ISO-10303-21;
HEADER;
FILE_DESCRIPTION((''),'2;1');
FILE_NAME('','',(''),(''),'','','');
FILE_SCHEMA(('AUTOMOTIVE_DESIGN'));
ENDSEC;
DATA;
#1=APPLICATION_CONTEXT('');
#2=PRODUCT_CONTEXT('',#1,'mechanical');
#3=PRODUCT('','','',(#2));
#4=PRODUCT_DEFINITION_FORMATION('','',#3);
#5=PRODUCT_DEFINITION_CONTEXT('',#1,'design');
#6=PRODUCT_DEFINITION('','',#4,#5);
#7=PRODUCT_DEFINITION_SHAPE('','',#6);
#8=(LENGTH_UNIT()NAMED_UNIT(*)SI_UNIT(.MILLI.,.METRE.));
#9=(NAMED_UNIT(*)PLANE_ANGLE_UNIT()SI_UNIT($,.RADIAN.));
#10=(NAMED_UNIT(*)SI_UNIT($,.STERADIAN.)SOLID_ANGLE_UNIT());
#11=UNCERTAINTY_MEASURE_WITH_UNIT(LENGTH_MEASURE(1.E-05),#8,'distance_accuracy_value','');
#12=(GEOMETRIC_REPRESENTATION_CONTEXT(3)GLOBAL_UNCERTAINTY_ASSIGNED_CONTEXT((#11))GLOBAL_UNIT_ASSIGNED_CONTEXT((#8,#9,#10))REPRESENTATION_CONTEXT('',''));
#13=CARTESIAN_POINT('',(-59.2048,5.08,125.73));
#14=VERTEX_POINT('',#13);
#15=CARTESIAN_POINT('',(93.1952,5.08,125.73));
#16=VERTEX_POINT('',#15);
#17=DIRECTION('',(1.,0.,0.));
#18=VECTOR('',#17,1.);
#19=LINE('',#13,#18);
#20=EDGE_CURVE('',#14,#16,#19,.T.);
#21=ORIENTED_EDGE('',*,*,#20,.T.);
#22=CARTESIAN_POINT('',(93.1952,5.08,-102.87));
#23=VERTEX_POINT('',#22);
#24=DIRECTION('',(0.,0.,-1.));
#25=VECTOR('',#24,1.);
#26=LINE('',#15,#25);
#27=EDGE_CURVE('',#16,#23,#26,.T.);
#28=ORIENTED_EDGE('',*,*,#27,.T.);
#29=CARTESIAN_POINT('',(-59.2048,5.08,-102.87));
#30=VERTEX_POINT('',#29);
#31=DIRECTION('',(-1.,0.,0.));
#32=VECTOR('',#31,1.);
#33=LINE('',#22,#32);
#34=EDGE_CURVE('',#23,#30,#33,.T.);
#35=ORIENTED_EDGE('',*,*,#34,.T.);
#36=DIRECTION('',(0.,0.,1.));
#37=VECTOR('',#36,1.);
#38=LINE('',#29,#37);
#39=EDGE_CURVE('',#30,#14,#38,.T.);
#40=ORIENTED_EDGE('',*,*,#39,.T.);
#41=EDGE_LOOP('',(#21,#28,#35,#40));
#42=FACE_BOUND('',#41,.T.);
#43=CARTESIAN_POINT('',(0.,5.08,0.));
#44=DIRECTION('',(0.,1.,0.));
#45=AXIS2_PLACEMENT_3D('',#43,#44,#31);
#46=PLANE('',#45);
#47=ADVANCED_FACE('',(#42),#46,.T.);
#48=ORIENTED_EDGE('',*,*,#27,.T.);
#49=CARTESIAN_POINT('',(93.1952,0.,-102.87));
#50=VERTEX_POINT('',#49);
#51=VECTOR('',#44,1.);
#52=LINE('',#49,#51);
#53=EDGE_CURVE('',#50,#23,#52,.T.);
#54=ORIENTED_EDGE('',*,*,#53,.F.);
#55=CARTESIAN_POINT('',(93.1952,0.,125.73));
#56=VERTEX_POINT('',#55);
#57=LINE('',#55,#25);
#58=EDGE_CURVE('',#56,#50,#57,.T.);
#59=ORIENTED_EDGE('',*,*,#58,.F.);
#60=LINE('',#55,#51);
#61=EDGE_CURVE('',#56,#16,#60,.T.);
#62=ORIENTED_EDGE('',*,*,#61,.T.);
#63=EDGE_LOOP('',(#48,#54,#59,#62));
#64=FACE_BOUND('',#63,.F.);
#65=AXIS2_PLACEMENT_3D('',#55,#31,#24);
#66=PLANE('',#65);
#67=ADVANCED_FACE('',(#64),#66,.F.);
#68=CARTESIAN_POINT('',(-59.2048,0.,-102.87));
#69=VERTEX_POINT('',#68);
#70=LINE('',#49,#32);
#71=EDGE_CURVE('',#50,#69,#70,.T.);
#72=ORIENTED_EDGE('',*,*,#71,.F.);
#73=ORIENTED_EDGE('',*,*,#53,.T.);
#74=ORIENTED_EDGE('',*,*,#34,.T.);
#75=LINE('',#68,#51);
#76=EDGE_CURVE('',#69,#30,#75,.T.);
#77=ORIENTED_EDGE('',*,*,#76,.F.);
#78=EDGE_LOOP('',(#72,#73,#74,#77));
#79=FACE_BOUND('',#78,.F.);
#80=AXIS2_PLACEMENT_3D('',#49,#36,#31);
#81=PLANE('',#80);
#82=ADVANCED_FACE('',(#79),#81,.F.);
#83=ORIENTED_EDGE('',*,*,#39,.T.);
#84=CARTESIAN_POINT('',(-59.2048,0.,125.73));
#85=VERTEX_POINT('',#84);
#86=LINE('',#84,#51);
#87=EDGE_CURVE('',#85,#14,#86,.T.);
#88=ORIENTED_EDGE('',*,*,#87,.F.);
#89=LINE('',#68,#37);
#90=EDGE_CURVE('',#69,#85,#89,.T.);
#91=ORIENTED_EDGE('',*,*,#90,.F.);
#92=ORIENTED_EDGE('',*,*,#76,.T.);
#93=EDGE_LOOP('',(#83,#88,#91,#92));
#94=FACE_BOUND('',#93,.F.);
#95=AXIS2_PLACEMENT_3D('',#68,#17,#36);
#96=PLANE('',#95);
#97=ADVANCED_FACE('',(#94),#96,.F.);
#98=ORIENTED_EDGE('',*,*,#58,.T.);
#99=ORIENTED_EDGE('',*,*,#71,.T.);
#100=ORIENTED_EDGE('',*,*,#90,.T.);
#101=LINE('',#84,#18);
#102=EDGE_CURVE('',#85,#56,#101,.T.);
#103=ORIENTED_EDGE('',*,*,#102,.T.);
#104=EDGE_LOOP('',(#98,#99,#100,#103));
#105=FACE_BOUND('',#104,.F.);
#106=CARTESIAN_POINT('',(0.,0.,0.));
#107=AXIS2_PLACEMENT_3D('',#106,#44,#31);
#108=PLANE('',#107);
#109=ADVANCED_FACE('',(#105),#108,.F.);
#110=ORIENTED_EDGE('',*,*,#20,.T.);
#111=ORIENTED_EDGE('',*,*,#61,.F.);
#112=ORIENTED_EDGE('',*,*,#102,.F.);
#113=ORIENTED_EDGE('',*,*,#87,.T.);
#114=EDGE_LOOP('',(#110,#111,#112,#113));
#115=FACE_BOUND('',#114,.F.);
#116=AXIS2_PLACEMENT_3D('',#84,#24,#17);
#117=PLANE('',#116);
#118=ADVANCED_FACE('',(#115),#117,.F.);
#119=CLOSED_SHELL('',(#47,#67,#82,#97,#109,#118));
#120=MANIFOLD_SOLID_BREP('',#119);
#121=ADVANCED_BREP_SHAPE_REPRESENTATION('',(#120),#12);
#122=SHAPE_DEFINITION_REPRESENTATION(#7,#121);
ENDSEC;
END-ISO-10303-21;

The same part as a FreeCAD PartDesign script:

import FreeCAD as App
import Part
import Sketcher

V = App.Vector
Q = App.Units.Quantity


def add_polygon(sketch, points):
    """Adds a closed chain of lines whose ends are joined by coincident constraints."""
    first, n = sketch.GeometryCount, len(points)
    for a, b in zip(points, points[1:] + points[:1]):
        sketch.addGeometry(Part.LineSegment(App.Vector(*a, 0), App.Vector(*b, 0)), False)
    for i in range(n):
        sketch.addConstraint(Sketcher.Constraint("Coincident", first + i, 2, first + (i + 1) % n, 1))

doc = App.newDocument("Part")
params = doc.addObject("Spreadsheet::Sheet", "Params")
for row, (alias, value) in enumerate([
    ("sketch1_width", "6 in"),
    ("sketch1_height", "9 in"),
    ("pad1_length", "0.2 in"),
], start=1):
    params.set(f"A{row}", alias)
    params.set(f"B{row}", "=" + value)
    params.setAlias(f"B{row}", alias)

body = doc.addObject("PartDesign::Body", "Body")

sketch1 = body.newObject("Sketcher::SketchObject", "Sketch")
sketch1.AttachmentSupport = (doc.getObject("XZ_Plane"), [""])
sketch1.MapMode = "FlatFace"
add_polygon(sketch1, [(-59, -103), (-59, 126), (93, 126), (93, -103)])
sketch1.addConstraint([
    Sketcher.Constraint("Vertical", 0),
    Sketcher.Constraint("Horizontal", 1),
    Sketcher.Constraint("Vertical", 2),
    Sketcher.Constraint("Horizontal", 3),
    Sketcher.Constraint("DistanceX", 1, 1, 1, 2, Q("6 in")),
    Sketcher.Constraint("DistanceY", 0, 1, 0, 2, Q("9 in")),
    Sketcher.Constraint("DistanceY", -1, 1, 0, 2, Q("4.95 in")),
    Sketcher.Constraint("DistanceX", 0, 2, -1, 1, Q("2.3309 in")),
])
sketch1.setExpression("Constraints[8]", "Params.sketch1_width")
sketch1.setExpression("Constraints[9]", "Params.sketch1_height")
pad1 = body.newObject("PartDesign::Pad", "Pad")
pad1.Profile = sketch1
pad1.setExpression("Length", "Params.pad1_length")
pad1.Reversed = True

doc.recompute()
